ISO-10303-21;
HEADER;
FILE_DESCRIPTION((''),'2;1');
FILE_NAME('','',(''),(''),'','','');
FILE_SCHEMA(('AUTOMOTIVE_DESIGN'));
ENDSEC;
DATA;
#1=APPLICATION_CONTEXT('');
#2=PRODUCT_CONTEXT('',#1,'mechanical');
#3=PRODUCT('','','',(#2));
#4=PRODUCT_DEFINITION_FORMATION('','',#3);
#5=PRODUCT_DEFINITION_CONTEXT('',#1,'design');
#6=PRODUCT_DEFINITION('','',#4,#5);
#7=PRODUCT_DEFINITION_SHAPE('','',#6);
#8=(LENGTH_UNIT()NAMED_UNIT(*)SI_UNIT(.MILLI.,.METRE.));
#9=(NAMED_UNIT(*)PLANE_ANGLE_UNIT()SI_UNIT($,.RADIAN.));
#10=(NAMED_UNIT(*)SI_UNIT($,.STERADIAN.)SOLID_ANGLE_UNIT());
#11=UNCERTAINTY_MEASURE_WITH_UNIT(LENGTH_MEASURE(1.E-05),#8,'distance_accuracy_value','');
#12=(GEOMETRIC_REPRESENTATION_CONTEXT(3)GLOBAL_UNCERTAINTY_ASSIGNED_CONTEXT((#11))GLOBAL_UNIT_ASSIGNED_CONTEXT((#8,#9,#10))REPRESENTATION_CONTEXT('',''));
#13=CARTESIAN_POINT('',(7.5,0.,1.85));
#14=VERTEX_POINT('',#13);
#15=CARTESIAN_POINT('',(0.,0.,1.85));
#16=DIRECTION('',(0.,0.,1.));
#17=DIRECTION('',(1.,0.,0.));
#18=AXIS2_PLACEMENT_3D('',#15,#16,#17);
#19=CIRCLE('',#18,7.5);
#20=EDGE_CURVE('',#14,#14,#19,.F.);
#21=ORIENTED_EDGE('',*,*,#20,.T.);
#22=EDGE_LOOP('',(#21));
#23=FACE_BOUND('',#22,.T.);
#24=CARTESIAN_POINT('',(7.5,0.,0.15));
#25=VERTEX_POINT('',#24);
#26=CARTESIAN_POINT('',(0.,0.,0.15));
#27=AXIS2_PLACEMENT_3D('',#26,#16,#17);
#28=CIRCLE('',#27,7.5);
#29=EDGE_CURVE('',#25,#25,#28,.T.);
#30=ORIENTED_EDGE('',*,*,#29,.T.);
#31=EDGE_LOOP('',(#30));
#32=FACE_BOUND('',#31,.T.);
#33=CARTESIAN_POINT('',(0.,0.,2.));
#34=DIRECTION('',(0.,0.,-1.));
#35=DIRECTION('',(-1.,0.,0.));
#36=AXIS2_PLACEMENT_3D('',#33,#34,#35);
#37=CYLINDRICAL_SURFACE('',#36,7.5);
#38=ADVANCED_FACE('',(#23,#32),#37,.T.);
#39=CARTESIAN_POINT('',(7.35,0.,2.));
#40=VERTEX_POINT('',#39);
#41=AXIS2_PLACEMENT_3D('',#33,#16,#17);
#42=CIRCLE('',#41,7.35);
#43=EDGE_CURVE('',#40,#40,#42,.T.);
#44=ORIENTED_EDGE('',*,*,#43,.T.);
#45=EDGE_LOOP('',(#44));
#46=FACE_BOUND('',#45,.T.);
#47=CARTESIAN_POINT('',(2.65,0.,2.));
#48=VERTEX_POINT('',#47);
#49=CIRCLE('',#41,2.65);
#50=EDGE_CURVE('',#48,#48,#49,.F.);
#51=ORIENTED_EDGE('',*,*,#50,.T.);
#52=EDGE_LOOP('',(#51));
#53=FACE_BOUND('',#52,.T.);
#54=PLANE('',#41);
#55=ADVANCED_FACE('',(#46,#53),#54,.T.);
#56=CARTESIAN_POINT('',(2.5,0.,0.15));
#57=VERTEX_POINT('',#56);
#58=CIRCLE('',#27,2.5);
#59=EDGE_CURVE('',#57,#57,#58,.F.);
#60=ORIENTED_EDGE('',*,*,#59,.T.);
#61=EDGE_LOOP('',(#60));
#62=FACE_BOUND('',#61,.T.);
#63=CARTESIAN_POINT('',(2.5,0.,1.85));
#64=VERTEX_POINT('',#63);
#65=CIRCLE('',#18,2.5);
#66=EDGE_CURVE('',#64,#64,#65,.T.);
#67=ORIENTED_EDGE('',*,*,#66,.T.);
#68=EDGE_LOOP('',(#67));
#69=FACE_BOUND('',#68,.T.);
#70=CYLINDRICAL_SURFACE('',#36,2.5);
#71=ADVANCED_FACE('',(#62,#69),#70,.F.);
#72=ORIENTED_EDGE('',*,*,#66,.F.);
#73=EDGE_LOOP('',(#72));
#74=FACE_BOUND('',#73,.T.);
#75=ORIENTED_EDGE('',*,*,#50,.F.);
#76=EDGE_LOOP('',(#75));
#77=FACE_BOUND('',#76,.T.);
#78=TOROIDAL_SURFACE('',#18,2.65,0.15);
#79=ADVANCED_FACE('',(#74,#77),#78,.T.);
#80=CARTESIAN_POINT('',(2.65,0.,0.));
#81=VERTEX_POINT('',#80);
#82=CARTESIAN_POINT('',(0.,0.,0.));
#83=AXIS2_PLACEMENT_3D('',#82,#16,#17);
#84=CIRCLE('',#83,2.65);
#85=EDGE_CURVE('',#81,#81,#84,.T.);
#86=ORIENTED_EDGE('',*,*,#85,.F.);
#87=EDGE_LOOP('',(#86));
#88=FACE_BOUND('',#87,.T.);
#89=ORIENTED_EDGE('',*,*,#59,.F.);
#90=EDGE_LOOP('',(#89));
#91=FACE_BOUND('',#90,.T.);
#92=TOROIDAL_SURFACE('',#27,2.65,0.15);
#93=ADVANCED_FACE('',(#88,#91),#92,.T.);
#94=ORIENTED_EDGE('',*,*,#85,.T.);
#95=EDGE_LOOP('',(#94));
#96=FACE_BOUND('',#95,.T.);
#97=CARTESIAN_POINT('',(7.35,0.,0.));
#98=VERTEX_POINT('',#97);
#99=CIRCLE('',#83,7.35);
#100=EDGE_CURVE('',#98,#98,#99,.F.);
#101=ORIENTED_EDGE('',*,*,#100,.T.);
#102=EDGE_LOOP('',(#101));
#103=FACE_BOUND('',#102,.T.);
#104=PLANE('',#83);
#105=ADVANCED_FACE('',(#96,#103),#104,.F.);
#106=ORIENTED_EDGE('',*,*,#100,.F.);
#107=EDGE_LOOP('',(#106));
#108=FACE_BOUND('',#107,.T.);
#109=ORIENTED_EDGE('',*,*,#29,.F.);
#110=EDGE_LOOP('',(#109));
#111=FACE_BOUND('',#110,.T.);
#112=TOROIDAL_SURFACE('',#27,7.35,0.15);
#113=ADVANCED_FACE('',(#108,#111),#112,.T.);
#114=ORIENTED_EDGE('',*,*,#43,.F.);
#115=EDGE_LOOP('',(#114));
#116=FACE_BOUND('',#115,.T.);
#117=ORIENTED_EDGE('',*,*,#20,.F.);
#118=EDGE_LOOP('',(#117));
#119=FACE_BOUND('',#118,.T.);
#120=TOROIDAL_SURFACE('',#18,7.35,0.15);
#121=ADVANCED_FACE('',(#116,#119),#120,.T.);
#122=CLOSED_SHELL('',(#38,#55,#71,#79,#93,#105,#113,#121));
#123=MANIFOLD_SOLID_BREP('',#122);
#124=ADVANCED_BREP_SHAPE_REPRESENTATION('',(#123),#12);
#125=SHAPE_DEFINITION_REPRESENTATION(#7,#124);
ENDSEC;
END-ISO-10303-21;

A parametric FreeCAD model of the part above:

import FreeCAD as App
import Part
import Sketcher
from FreeCAD import Vector
Q = App.Units.Quantity


def edges_at(feature, points):
    """Names of the edges that pass closest to the given points."""
    edges = feature.Shape.Edges
    near = lambda p: min(range(len(edges)), key=lambda i: edges[i].distToShape(Part.Vertex(*p))[0])
    return sorted({f"Edge{near(p) + 1}" for p in points})

doc = App.newDocument("Part")
body = doc.addObject("PartDesign::Body", "Body")

# Sketch on XY plane
sketch1 = doc.addObject("Sketcher::SketchObject", "Sketch")
body.addObject(sketch1)
sketch1.AttachmentSupport = (doc.XY_Plane, [""])
sketch1.MapMode = "FlatFace"
sketch1.addGeometry([
    Part.Circle(Vector(0, 0, 0), Vector(0, 0, 1), 7.5),
    Part.Circle(Vector(0, 0, 0), Vector(0, 0, 1), 2.5),
], False)
sketch1.addConstraint([
    Sketcher.Constraint("Coincident", 0, 3, -1, 1),
    Sketcher.Constraint("Coincident", 1, 3, -1, 1),
    Sketcher.Constraint("Diameter", 0, Q("15 mm")),
    Sketcher.Constraint("Diameter", 1, Q("5 mm")),
])
pad1 = doc.addObject("PartDesign::Pad", "Pad")
body.addObject(pad1)
pad1.Profile = sketch1
pad1.Length = 2
doc.recompute()

fillet = doc.addObject("PartDesign::Fillet", "Fillet")
body.addObject(fillet)
fillet.Base = (pad1, edges_at(pad1, [
    (-7.5, 0, 0),
    (-7.5, 0, 2),
    (-2.5, 0, 0),
    (-2.5, 0, 2),
]))
fillet.Radius = 0.15

doc.recompute()
